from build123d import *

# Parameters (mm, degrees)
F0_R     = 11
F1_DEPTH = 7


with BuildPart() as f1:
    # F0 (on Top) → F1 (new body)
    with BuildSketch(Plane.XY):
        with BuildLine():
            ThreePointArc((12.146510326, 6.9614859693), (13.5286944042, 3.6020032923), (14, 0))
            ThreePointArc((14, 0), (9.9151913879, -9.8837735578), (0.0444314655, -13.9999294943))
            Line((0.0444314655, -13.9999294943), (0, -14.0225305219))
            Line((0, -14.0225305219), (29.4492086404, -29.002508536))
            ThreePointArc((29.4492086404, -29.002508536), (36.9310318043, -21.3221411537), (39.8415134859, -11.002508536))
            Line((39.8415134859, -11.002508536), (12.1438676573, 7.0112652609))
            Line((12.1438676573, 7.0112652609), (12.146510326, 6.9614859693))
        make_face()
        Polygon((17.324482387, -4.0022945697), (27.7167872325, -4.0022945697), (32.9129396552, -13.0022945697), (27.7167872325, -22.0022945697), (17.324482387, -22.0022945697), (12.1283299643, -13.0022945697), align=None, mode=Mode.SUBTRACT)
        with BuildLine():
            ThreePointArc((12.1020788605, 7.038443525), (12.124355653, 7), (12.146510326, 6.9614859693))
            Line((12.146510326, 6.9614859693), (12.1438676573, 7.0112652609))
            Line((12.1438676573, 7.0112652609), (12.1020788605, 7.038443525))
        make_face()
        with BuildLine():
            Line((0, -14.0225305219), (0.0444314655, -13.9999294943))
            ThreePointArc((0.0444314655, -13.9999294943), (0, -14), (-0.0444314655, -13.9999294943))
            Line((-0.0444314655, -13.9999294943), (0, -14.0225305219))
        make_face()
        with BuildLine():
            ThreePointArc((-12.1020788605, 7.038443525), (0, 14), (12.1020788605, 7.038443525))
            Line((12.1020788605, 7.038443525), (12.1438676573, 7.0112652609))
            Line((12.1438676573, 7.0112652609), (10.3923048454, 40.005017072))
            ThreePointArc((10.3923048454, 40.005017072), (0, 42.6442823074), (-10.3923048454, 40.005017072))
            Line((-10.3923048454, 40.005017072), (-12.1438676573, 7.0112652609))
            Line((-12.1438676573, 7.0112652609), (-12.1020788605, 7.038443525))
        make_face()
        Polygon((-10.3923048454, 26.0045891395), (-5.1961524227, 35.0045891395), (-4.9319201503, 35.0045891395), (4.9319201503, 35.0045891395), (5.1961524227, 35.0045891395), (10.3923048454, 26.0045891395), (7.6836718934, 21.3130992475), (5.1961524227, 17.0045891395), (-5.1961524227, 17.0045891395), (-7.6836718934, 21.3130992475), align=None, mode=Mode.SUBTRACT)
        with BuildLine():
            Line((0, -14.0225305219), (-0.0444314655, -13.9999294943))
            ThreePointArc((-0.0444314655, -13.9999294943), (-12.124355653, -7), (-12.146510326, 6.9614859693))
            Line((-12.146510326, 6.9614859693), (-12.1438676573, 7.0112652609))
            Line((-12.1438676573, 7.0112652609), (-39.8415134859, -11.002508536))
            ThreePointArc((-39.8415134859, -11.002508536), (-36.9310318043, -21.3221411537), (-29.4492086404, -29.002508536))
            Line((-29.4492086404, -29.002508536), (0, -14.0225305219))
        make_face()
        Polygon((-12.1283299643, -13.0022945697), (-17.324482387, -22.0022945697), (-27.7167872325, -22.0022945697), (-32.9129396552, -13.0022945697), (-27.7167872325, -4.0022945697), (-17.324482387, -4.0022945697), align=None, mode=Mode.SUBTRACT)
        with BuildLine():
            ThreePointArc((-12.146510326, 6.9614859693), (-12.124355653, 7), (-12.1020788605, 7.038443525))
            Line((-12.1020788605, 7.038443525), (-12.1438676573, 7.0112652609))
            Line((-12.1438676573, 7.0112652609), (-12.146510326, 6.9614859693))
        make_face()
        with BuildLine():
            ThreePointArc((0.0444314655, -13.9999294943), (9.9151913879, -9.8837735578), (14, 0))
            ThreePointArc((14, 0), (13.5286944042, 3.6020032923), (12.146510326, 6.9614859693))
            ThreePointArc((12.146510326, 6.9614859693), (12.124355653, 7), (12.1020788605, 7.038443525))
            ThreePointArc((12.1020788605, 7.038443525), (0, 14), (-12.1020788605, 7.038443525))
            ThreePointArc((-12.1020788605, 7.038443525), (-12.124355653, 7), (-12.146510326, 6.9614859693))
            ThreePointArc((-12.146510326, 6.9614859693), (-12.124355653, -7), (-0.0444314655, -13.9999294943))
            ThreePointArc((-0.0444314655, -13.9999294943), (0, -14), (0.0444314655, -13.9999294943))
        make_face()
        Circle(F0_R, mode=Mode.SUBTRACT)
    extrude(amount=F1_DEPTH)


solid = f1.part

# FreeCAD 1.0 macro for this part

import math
import FreeCAD as App
import Part
import Sketcher
from FreeCAD import Vector
Q = App.Units.Quantity

doc = App.newDocument("Part")
body = doc.addObject("PartDesign::Body", "Body")

# Sketch on XY plane
sketch1 = body.newObject("Sketcher::SketchObject", "Sketch")
sketch1.AttachmentSupport = (doc.getObject("XY_Plane"), [""])
sketch1.MapMode = "FlatFace"
sketch1.addGeometry(Part.ArcOfCircle(Part.Circle(Vector(0, 20.86441, 0), Vector(0, 0, 1), 21.779873), math.radians(61.500455), math.radians(118.499545)), False)
sketch1.addGeometry(Part.LineSegment(Vector(-10.392305, 40.005017, 0), Vector(-12.143868, 7.011265, 0)), False)
sketch1.addGeometry(Part.LineSegment(Vector(-12.143868, 7.011265, 0), Vector(-39.841513, -11.002509, 0)), False)
sketch1.addGeometry(Part.ArcOfCircle(Part.Circle(Vector(-18.069109, -10.432205, 0), Vector(0, 0, 1), 21.779873), math.radians(-178.499545), math.radians(-121.500455)), False)
sketch1.addGeometry(Part.LineSegment(Vector(-29.449209, -29.002509, 0), Vector(0, -14.022531, 0)), False)
sketch1.addGeometry(Part.LineSegment(Vector(0, -14.022531, 0), Vector(29.449209, -29.002509, 0)), False)
sketch1.addGeometry(Part.ArcOfCircle(Part.Circle(Vector(18.069109, -10.432205, 0), Vector(0, 0, 1), 21.779873), math.radians(-58.499545), math.radians(-1.500455)), False)
sketch1.addGeometry(Part.LineSegment(Vector(39.841513, -11.002509, 0), Vector(12.143868, 7.011265, 0)), False)
sketch1.addGeometry(Part.LineSegment(Vector(12.143868, 7.011265, 0), Vector(10.392305, 40.005017, 0)), False)
sketch1.addGeometry(Part.LineSegment(Vector(-17.324482, -4.002295, 0), Vector(-12.12833, -13.002295, 0)), False)
sketch1.addGeometry(Part.LineSegment(Vector(-12.12833, -13.002295, 0), Vector(-17.324482, -22.002295, 0)), False)
sketch1.addGeometry(Part.LineSegment(Vector(-17.324482, -22.002295, 0), Vector(-27.716787, -22.002295, 0)), False)
sketch1.addGeometry(Part.LineSegment(Vector(-27.716787, -22.002295, 0), Vector(-32.91294, -13.002295, 0)), False)
sketch1.addGeometry(Part.LineSegment(Vector(-32.91294, -13.002295, 0), Vector(-27.716787, -4.002295, 0)), False)
sketch1.addGeometry(Part.LineSegment(Vector(-27.716787, -4.002295, 0), Vector(-17.324482, -4.002295, 0)), False)
sketch1.addGeometry(Part.LineSegment(Vector(12.12833, -13.002295, 0), Vector(17.324482, -4.002295, 0)), False)
sketch1.addGeometry(Part.LineSegment(Vector(17.324482, -4.002295, 0), Vector(27.716787, -4.002295, 0)), False)
sketch1.addGeometry(Part.LineSegment(Vector(27.716787, -4.002295, 0), Vector(32.91294, -13.002295, 0)), False)
sketch1.addGeometry(Part.LineSegment(Vector(32.91294, -13.002295, 0), Vector(27.716787, -22.002295, 0)), False)
sketch1.addGeometry(Part.LineSegment(Vector(27.716787, -22.002295, 0), Vector(17.324482, -22.002295, 0)), False)
sketch1.addGeometry(Part.LineSegment(Vector(17.324482, -22.002295, 0), Vector(12.12833, -13.002295, 0)), False)
sketch1.addGeometry(Part.Circle(Vector(0, 0, 0), Vector(0, 0, 1), 11), False)
sketch1.addGeometry(Part.LineSegment(Vector(-7.683672, 21.313099, 0), Vector(-10.392305, 26.004589, 0)), False)
sketch1.addGeometry(Part.LineSegment(Vector(-10.392305, 26.004589, 0), Vector(-5.196152, 35.004589, 0)), False)
sketch1.addGeometry(Part.LineSegment(Vector(-5.196152, 35.004589, 0), Vector(5.196152, 35.004589, 0)), False)
sketch1.addGeometry(Part.LineSegment(Vector(5.196152, 35.004589, 0), Vector(10.392305, 26.004589, 0)), False)
sketch1.addGeometry(Part.LineSegment(Vector(10.392305, 26.004589, 0), Vector(7.683672, 21.313099, 0)), False)
sketch1.addGeometry(Part.LineSegment(Vector(7.683672, 21.313099, 0), Vector(5.196152, 17.004589, 0)), False)
sketch1.addGeometry(Part.LineSegment(Vector(5.196152, 17.004589, 0), Vector(-5.196152, 17.004589, 0)), False)
sketch1.addGeometry(Part.LineSegment(Vector(-5.196152, 17.004589, 0), Vector(-7.683672, 21.313099, 0)), False)
sketch1.addConstraint(Sketcher.Constraint("Coincident", 0, 2, 1, 1))
sketch1.addConstraint(Sketcher.Constraint("Coincident", 1, 2, 2, 1))
sketch1.addConstraint(Sketcher.Constraint("Coincident", 2, 2, 3, 1))
sketch1.addConstraint(Sketcher.Constraint("Coincident", 3, 2, 4, 1))
sketch1.addConstraint(Sketcher.Constraint("Coincident", 4, 2, 5, 1))
sketch1.addConstraint(Sketcher.Constraint("Coincident", 5, 2, 6, 1))
sketch1.addConstraint(Sketcher.Constraint("Coincident", 6, 2, 7, 1))
sketch1.addConstraint(Sketcher.Constraint("Coincident", 7, 2, 8, 1))
sketch1.addConstraint(Sketcher.Constraint("Coincident", 8, 2, 0, 1))
sketch1.addConstraint(Sketcher.Constraint("Coincident", 9, 2, 10, 1))
sketch1.addConstraint(Sketcher.Constraint("Coincident", 10, 2, 11, 1))
sketch1.addConstraint(Sketcher.Constraint("Coincident", 11, 2, 12, 1))
sketch1.addConstraint(Sketcher.Constraint("Coincident", 12, 2, 13, 1))
sketch1.addConstraint(Sketcher.Constraint("Coincident", 13, 2, 14, 1))
sketch1.addConstraint(Sketcher.Constraint("Coincident", 14, 2, 9, 1))
sketch1.addConstraint(Sketcher.Constraint("Coincident", 15, 2, 16, 1))
sketch1.addConstraint(Sketcher.Constraint("Coincident", 16, 2, 17, 1))
sketch1.addConstraint(Sketcher.Constraint("Coincident", 17, 2, 18, 1))
sketch1.addConstraint(Sketcher.Constraint("Coincident", 18, 2, 19, 1))
sketch1.addConstraint(Sketcher.Constraint("Coincident", 19, 2, 20, 1))
sketch1.addConstraint(Sketcher.Constraint("Coincident", 20, 2, 15, 1))
sketch1.addConstraint(Sketcher.Constraint("Coincident", 22, 2, 23, 1))
sketch1.addConstraint(Sketcher.Constraint("Coincident", 23, 2, 24, 1))
sketch1.addConstraint(Sketcher.Constraint("Coincident", 24, 2, 25, 1))
sketch1.addConstraint(Sketcher.Constraint("Coincident", 25, 2, 26, 1))
sketch1.addConstraint(Sketcher.Constraint("Coincident", 26, 2, 27, 1))
sketch1.addConstraint(Sketcher.Constraint("Coincident", 27, 2, 28, 1))
sketch1.addConstraint(Sketcher.Constraint("Coincident", 28, 2, 29, 1))
sketch1.addConstraint(Sketcher.Constraint("Coincident", 29, 2, 22, 1))
sketch1.addConstraint(Sketcher.Constraint("Horizontal", 11))
sketch1.addConstraint(Sketcher.Constraint("Horizontal", 14))
sketch1.addConstraint(Sketcher.Constraint("Horizontal", 16))
sketch1.addConstraint(Sketcher.Constraint("Horizontal", 19))
sketch1.addConstraint(Sketcher.Constraint("Horizontal", 24))
sketch1.addConstraint(Sketcher.Constraint("Horizontal", 28))
sketch1.addConstraint(Sketcher.Constraint("Coincident", 21, 3, -1, 1))
sketch1.addConstraint(Sketcher.Constraint("Equal", 0, 3))
sketch1.addConstraint(Sketcher.Constraint("Equal", 3, 6))
sketch1.addConstraint(Sketcher.Constraint("Symmetric", 3, 3, 6, 3, -2))
sketch1.addConstraint(Sketcher.Constraint("Symmetric", 1, 2, 7, 2, -2))
sketch1.addConstraint(Sketcher.Constraint("Symmetric", 0, 2, 8, 2, -2))
sketch1.addConstraint(Sketcher.Constraint("Symmetric", 14, 2, 15, 2, -2))
sketch1.addConstraint(Sketcher.Constraint("Symmetric", 12, 2, 17, 2, -2))
sketch1.addConstraint(Sketcher.Constraint("Symmetric", 11, 2, 18, 2, -2))
sketch1.addConstraint(Sketcher.Constraint("Symmetric", 9, 2, 20, 2, -2))
sketch1.addConstraint(Sketcher.Constraint("Symmetric", 22, 2, 25, 2, -2))
sketch1.addConstraint(Sketcher.Constraint("Symmetric", 26, 2, 29, 2, -2))
sketch1.addConstraint(Sketcher.Constraint("PointOnObject", 4, 2, -2))
sketch1.addConstraint(Sketcher.Constraint("Parallel", 9, 12))
sketch1.addConstraint(Sketcher.Constraint("Parallel", 10, 13))
sketch1.addConstraint(Sketcher.Constraint("Parallel", 13, 15))
sketch1.addConstraint(Sketcher.Constraint("Parallel", 12, 17))
sketch1.addConstraint(Sketcher.Constraint("Parallel", 17, 20))
sketch1.addConstraint(Sketcher.Constraint("Parallel", 20, 22))
sketch1.addConstraint(Sketcher.Constraint("Parallel", 18, 23))
sketch1.addConstraint(Sketcher.Constraint("Parallel", 22, 25))
sketch1.addConstraint(Sketcher.Constraint("Parallel", 26, 27))
sketch1.addConstraint(Sketcher.Constraint("Parallel", 25, 29))
sketch1.addConstraint(Sketcher.Constraint("Horizontal", 3, 2, 5, 2))
sketch1.addConstraint(Sketcher.Constraint("Horizontal", 2, 2, 6, 2))
sketch1.addConstraint(Sketcher.Constraint("Horizontal", 9, 2, 12, 2))
sketch1.addConstraint(Sketcher.Constraint("Vertical", 11, 2, 13, 2))
sketch1.addConstraint(Sketcher.Constraint("Vertical", 0, 2, 22, 2))
sketch1.addConstraint(Sketcher.Constraint("Vertical", 24, 2, 27, 2))
sketch1.addConstraint(Sketcher.Constraint("Equal", 19, 24))
sketch1.addConstraint(Sketcher.Constraint("Equal", 1, 2))
sketch1.addConstraint(Sketcher.Constraint("Equal", 2, 4))
sketch1.addConstraint(Sketcher.Constraint("Equal", 20, 23))
sketch1.addConstraint(Sketcher.Constraint("Diameter", 21, Q("22 mm")))
sketch1.addConstraint(Sketcher.Constraint("Angle", 9, Q("-60 deg")))
sketch1.addConstraint(Sketcher.Constraint("DistanceY", 3, 2, 2, 2, Q("18 mm")))
sketch1.addConstraint(Sketcher.Constraint("DistanceY", 10, 2, 9, 2, Q("9 mm")))
sketch1.addConstraint(Sketcher.Constraint("Radius", 0, Q("21.779873 mm")))
sketch1.addConstraint(Sketcher.Constraint("DistanceY", -1, 1, 26, 2, Q("21.313099 mm")))
sketch1.addConstraint(Sketcher.Constraint("DistanceX", 3, 2, 3, 3, Q("11.3801 mm")))
sketch1.addConstraint(Sketcher.Constraint("Distance", 27, Q("4.975039 mm")))
sketch1.addConstraint(Sketcher.Constraint("DistanceX", 11, 2, 11, 1, Q("10.392305 mm")))
sketch1.addConstraint(Sketcher.Constraint("DistanceY", -1, 1, 0, 3, Q("20.86441 mm")))
sketch1.addConstraint(Sketcher.Constraint("DistanceX", 3, 3, -1, 1, Q("18.069109 mm")))
sketch1.addConstraint(Sketcher.Constraint("DistanceY", 2, 2, -1, 1, Q("11.002509 mm")))
sketch1.addConstraint(Sketcher.Constraint("DistanceY", 4, 2, -1, 1, Q("14.022531 mm")))
sketch1.addConstraint(Sketcher.Constraint("DistanceX", 9, 2, -1, 1, Q("12.12833 mm")))
sketch1.addConstraint(Sketcher.Constraint("DistanceY", 9, 2, 3, 3, Q("2.57009 mm")))
pad1 = body.newObject("PartDesign::Pad", "Pad")
pad1.Profile = sketch1
pad1.Length = 7

doc.recompute()
